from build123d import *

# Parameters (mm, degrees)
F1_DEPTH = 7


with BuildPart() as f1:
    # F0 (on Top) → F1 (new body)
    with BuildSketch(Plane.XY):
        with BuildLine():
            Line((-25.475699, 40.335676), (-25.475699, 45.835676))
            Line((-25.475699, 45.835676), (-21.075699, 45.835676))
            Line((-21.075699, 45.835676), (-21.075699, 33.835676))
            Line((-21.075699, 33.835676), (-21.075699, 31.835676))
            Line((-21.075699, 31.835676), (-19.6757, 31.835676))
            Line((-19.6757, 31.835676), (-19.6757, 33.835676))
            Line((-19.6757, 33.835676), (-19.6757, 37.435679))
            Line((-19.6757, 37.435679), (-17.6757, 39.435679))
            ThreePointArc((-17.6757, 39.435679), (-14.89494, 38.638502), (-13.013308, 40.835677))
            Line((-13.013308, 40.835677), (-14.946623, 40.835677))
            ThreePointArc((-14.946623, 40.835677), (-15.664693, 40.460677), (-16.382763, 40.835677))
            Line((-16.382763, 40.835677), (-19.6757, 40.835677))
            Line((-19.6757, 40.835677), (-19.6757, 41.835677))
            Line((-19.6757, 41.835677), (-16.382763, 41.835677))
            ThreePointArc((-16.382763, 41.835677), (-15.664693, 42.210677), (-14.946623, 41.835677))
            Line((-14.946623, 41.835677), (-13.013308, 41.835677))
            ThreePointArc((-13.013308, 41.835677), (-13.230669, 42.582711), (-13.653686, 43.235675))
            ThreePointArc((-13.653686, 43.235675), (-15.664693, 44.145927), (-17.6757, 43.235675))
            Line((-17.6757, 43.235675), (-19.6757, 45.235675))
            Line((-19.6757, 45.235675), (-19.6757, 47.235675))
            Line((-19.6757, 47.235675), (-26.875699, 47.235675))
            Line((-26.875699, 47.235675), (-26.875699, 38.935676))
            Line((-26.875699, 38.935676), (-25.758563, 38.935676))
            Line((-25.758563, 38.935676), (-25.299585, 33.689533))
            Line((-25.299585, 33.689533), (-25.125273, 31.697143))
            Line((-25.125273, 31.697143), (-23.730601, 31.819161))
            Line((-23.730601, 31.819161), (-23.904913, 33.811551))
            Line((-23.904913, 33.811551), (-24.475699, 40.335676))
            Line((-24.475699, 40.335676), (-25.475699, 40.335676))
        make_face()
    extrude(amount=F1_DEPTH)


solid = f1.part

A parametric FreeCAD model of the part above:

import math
import FreeCAD as App
import Part
import Sketcher
from FreeCAD import Vector
Q = App.Units.Quantity

doc = App.newDocument("Part")
body = doc.addObject("PartDesign::Body", "Body")

sketch1 = doc.addObject("Sketcher::SketchObject", "Sketch")
body.addObject(sketch1)
sketch1.AttachmentSupport = (doc.XY_Plane, [""])
sketch1.MapMode = "FlatFace"
sketch1.addGeometry(Part.LineSegment(Vector(-25.5, 40.3, 0), Vector(-25.5, 45.8, 0)), False)
sketch1.addGeometry(Part.LineSegment(Vector(-25.5, 45.8, 0), Vector(-21.1, 45.8, 0)), False)
sketch1.addGeometry(Part.LineSegment(Vector(-21.1, 45.8, 0), Vector(-21.1, 31.8, 0)), False)
sketch1.addGeometry(Part.LineSegment(Vector(-21.1, 31.8, 0), Vector(-19.7, 31.8, 0)), False)
sketch1.addGeometry(Part.LineSegment(Vector(-19.7, 31.8, 0), Vector(-19.7, 37.4, 0)), False)
sketch1.addGeometry(Part.LineSegment(Vector(-19.7, 37.4, 0), Vector(-17.7, 39.4, 0)), False)
sketch1.addGeometry(Part.ArcOfCircle(Part.Circle(Vector(-15.7, 41.2, 0), Vector(0, 0, 1), 2.7), math.radians(-139), math.radians(-8)), False)
sketch1.addGeometry(Part.LineSegment(Vector(-13, 40.8, 0), Vector(-14.9, 40.8, 0)), False)
sketch1.addGeometry(Part.ArcOfCircle(Part.Circle(Vector(-15.7, 41.3, 0), Vector(0, 0, 1), 0.9), math.radians(-145), math.radians(-35)), False)
sketch1.addGeometry(Part.LineSegment(Vector(-16.4, 40.8, 0), Vector(-19.7, 40.8, 0)), False)
sketch1.addGeometry(Part.LineSegment(Vector(-19.7, 40.8, 0), Vector(-19.7, 41.8, 0)), False)
sketch1.addGeometry(Part.LineSegment(Vector(-19.7, 41.8, 0), Vector(-16.4, 41.8, 0)), False)
sketch1.addGeometry(Part.ArcOfCircle(Part.Circle(Vector(-15.7, 41.3, 0), Vector(0, 0, 1), 0.9), math.radians(35), math.radians(145)), False)
sketch1.addGeometry(Part.LineSegment(Vector(-14.9, 41.8, 0), Vector(-13, 41.8, 0)), False)
sketch1.addGeometry(Part.ArcOfCircle(Part.Circle(Vector(-15.7, 41.5, 0), Vector(0, 0, 1), 2.7), math.radians(8), math.radians(41)), False)
sketch1.addGeometry(Part.ArcOfCircle(Part.Circle(Vector(-15.7, 41.5, 0), Vector(0, 0, 1), 2.7), math.radians(41), math.radians(139)), False)
sketch1.addGeometry(Part.LineSegment(Vector(-17.7, 43.2, 0), Vector(-19.7, 45.2, 0)), False)
sketch1.addGeometry(Part.LineSegment(Vector(-19.7, 45.2, 0), Vector(-19.7, 47.2, 0)), False)
sketch1.addGeometry(Part.LineSegment(Vector(-19.7, 47.2, 0), Vector(-26.9, 47.2, 0)), False)
sketch1.addGeometry(Part.LineSegment(Vector(-26.9, 47.2, 0), Vector(-26.9, 38.9, 0)), False)
sketch1.addGeometry(Part.LineSegment(Vector(-26.9, 38.9, 0), Vector(-25.8, 38.9, 0)), False)
sketch1.addGeometry(Part.LineSegment(Vector(-25.8, 38.9, 0), Vector(-25.3, 33.7, 0)), False)
sketch1.addGeometry(Part.LineSegment(Vector(-25.3, 33.7, 0), Vector(-25.1, 31.7, 0)), False)
sketch1.addGeometry(Part.LineSegment(Vector(-25.1, 31.7, 0), Vector(-23.7, 31.8, 0)), False)
sketch1.addGeometry(Part.LineSegment(Vector(-23.7, 31.8, 0), Vector(-23.9, 33.8, 0)), False)
sketch1.addGeometry(Part.LineSegment(Vector(-23.9, 33.8, 0), Vector(-24.5, 40.3, 0)), False)
sketch1.addGeometry(Part.LineSegment(Vector(-24.5, 40.3, 0), Vector(-25.5, 40.3, 0)), False)
sketch1.addConstraint(Sketcher.Constraint("Coincident", 0, 2, 1, 1))
sketch1.addConstraint(Sketcher.Constraint("Coincident", 1, 2, 2, 1))
sketch1.addConstraint(Sketcher.Constraint("Coincident", 2, 2, 3, 1))
sketch1.addConstraint(Sketcher.Constraint("Coincident", 3, 2, 4, 1))
sketch1.addConstraint(Sketcher.Constraint("Coincident", 4, 2, 5, 1))
sketch1.addConstraint(Sketcher.Constraint("Coincident", 5, 2, 6, 1))
sketch1.addConstraint(Sketcher.Constraint("Coincident", 6, 2, 7, 1))
sketch1.addConstraint(Sketcher.Constraint("Coincident", 7, 2, 8, 2))
sketch1.addConstraint(Sketcher.Constraint("Coincident", 8, 1, 9, 1))
sketch1.addConstraint(Sketcher.Constraint("Coincident", 9, 2, 10, 1))
sketch1.addConstraint(Sketcher.Constraint("Coincident", 10, 2, 11, 1))
sketch1.addConstraint(Sketcher.Constraint("Coincident", 11, 2, 12, 2))
sketch1.addConstraint(Sketcher.Constraint("Coincident", 12, 1, 13, 1))
sketch1.addConstraint(Sketcher.Constraint("Coincident", 13, 2, 14, 1))
sketch1.addConstraint(Sketcher.Constraint("Tangent", 14, 2, 15, 1))
sketch1.addConstraint(Sketcher.Constraint("Coincident", 15, 2, 16, 1))
sketch1.addConstraint(Sketcher.Constraint("Coincident", 16, 2, 17, 1))
sketch1.addConstraint(Sketcher.Constraint("Coincident", 17, 2, 18, 1))
sketch1.addConstraint(Sketcher.Constraint("Coincident", 18, 2, 19, 1))
sketch1.addConstraint(Sketcher.Constraint("Coincident", 19, 2, 20, 1))
sketch1.addConstraint(Sketcher.Constraint("Coincident", 20, 2, 21, 1))
sketch1.addConstraint(Sketcher.Constraint("Coincident", 21, 2, 22, 1))
sketch1.addConstraint(Sketcher.Constraint("Coincident", 22, 2, 23, 1))
sketch1.addConstraint(Sketcher.Constraint("Coincident", 23, 2, 24, 1))
sketch1.addConstraint(Sketcher.Constraint("Coincident", 24, 2, 25, 1))
sketch1.addConstraint(Sketcher.Constraint("Coincident", 25, 2, 26, 1))
sketch1.addConstraint(Sketcher.Constraint("Coincident", 26, 2, 0, 1))
sketch1.addConstraint(Sketcher.Constraint("Vertical", 0))
sketch1.addConstraint(Sketcher.Constraint("Horizontal", 1))
sketch1.addConstraint(Sketcher.Constraint("Vertical", 2))
sketch1.addConstraint(Sketcher.Constraint("Horizontal", 3))
sketch1.addConstraint(Sketcher.Constraint("Vertical", 4))
sketch1.addConstraint(Sketcher.Constraint("Horizontal", 7))
sketch1.addConstraint(Sketcher.Constraint("Horizontal", 9))
sketch1.addConstraint(Sketcher.Constraint("Vertical", 10))
sketch1.addConstraint(Sketcher.Constraint("Horizontal", 11))
sketch1.addConstraint(Sketcher.Constraint("Horizontal", 13))
sketch1.addConstraint(Sketcher.Constraint("Vertical", 17))
sketch1.addConstraint(Sketcher.Constraint("Horizontal", 18))
sketch1.addConstraint(Sketcher.Constraint("Vertical", 19))
sketch1.addConstraint(Sketcher.Constraint("Horizontal", 20))
sketch1.addConstraint(Sketcher.Constraint("Horizontal", 26))
sketch1.addConstraint(Sketcher.Constraint("Coincident", 12, 3, 8, 3))
sketch1.addConstraint(Sketcher.Constraint("Equal", 8, 12))
sketch1.addConstraint(Sketcher.Constraint("Equal", 6, 15))
sketch1.addConstraint(Sketcher.Constraint("Perpendicular", 5, 16))
sketch1.addConstraint(Sketcher.Constraint("Parallel", 21, 22))
sketch1.addConstraint(Sketcher.Constraint("Perpendicular", 22, 23))
sketch1.addConstraint(Sketcher.Constraint("Perpendicular", 23, 24))
sketch1.addConstraint(Sketcher.Constraint("Parallel", 24, 25))
sketch1.addConstraint(Sketcher.Constraint("Horizontal", 7, 2, 8, 1))
sketch1.addConstraint(Sketcher.Constraint("Horizontal", 11, 2, 12, 1))
sketch1.addConstraint(Sketcher.Constraint("Horizontal", 14, 2, 15, 2))
sketch1.addConstraint(Sketcher.Constraint("Vertical", 6, 3, 8, 3))
sketch1.addConstraint(Sketcher.Constraint("Vertical", 12, 3, 14, 3))
sketch1.addConstraint(Sketcher.Constraint("Vertical", 12, 3, 15, 3))
sketch1.addConstraint(Sketcher.Constraint("Vertical", 4, 2, 9, 2))
sketch1.addConstraint(Sketcher.Constraint("Vertical", 8, 1, 11, 2))
sketch1.addConstraint(Sketcher.Constraint("Vertical", 6, 2, 13, 2))
sketch1.addConstraint(Sketcher.Constraint("Vertical", 5, 2, 15, 2))
sketch1.addConstraint(Sketcher.Constraint("Vertical", 10, 2, 16, 2))
sketch1.addConstraint(Sketcher.Constraint("Equal", 26, 10))
sketch1.addConstraint(Sketcher.Constraint("Equal", 5, 16))
sketch1.addConstraint(Sketcher.Constraint("Equal", 22, 24))
sketch1.addConstraint(Sketcher.Constraint("DistanceX", 26, 2, 26, 1, Q("1 mm")))
sketch1.addConstraint(Sketcher.Constraint("DistanceY", 2, 2, 2, 1, Q("14 mm")))
sketch1.addConstraint(Sketcher.Constraint("DistanceY", 17, 1, 17, 2, Q("2 mm")))
sketch1.addConstraint(Sketcher.Constraint("Angle", 21, Q("-85 deg")))
sketch1.addConstraint(Sketcher.Constraint("Distance", 22, Q("2.000001 mm")))
sketch1.addConstraint(Sketcher.Constraint("DistanceX", 1, 1, 1, 2, Q("4.4 mm")))
sketch1.addConstraint(Sketcher.Constraint("DistanceX", 3, 1, 3, 2, Q("1.399999 mm")))
sketch1.addConstraint(Sketcher.Constraint("DistanceX", 18, 2, 18, 1, Q("7.199999 mm")))
sketch1.addConstraint(Sketcher.Constraint("DistanceY", 0, 1, 0, 2, Q("5.5 mm")))
sketch1.addConstraint(Sketcher.Constraint("DistanceY", 19, 2, 19, 1, Q("8.299999 mm")))
sketch1.addConstraint(Sketcher.Constraint("Radius", 8, Q("0.874999 mm")))
sketch1.addConstraint(Sketcher.Constraint("DistanceX", 4, 2, 5, 2, Q("2 mm")))
sketch1.addConstraint(Sketcher.Constraint("Distance", 23, Q("1.399999 mm")))
sketch1.addConstraint(Sketcher.Constraint("DistanceY", 12, 3, 0, 2, Q("4.499998 mm")))
sketch1.addConstraint(Sketcher.Constraint("DistanceY", 4, 2, 12, 3, Q("3.899999 mm")))
sketch1.addConstraint(Sketcher.Constraint("Radius", 6, Q("2.676571 mm")))
sketch1.addConstraint(Sketcher.Constraint("DistanceY", -1, 1, 6, 3, Q("41.201998 mm")))
sketch1.addConstraint(Sketcher.Constraint("DistanceX", 0, 2, -1, 1, Q("25.475699 mm")))
sketch1.addConstraint(Sketcher.Constraint("DistanceX", 23, 2, -1, 1, Q("23.730601 mm")))
sketch1.addConstraint(Sketcher.Constraint("DistanceX", 7, 2, 7, 1, Q("1.933315 mm")))
pad1 = doc.addObject("PartDesign::Pad", "Pad")
body.addObject(pad1)
pad1.Profile = sketch1
pad1.Length = 7

doc.recompute()
